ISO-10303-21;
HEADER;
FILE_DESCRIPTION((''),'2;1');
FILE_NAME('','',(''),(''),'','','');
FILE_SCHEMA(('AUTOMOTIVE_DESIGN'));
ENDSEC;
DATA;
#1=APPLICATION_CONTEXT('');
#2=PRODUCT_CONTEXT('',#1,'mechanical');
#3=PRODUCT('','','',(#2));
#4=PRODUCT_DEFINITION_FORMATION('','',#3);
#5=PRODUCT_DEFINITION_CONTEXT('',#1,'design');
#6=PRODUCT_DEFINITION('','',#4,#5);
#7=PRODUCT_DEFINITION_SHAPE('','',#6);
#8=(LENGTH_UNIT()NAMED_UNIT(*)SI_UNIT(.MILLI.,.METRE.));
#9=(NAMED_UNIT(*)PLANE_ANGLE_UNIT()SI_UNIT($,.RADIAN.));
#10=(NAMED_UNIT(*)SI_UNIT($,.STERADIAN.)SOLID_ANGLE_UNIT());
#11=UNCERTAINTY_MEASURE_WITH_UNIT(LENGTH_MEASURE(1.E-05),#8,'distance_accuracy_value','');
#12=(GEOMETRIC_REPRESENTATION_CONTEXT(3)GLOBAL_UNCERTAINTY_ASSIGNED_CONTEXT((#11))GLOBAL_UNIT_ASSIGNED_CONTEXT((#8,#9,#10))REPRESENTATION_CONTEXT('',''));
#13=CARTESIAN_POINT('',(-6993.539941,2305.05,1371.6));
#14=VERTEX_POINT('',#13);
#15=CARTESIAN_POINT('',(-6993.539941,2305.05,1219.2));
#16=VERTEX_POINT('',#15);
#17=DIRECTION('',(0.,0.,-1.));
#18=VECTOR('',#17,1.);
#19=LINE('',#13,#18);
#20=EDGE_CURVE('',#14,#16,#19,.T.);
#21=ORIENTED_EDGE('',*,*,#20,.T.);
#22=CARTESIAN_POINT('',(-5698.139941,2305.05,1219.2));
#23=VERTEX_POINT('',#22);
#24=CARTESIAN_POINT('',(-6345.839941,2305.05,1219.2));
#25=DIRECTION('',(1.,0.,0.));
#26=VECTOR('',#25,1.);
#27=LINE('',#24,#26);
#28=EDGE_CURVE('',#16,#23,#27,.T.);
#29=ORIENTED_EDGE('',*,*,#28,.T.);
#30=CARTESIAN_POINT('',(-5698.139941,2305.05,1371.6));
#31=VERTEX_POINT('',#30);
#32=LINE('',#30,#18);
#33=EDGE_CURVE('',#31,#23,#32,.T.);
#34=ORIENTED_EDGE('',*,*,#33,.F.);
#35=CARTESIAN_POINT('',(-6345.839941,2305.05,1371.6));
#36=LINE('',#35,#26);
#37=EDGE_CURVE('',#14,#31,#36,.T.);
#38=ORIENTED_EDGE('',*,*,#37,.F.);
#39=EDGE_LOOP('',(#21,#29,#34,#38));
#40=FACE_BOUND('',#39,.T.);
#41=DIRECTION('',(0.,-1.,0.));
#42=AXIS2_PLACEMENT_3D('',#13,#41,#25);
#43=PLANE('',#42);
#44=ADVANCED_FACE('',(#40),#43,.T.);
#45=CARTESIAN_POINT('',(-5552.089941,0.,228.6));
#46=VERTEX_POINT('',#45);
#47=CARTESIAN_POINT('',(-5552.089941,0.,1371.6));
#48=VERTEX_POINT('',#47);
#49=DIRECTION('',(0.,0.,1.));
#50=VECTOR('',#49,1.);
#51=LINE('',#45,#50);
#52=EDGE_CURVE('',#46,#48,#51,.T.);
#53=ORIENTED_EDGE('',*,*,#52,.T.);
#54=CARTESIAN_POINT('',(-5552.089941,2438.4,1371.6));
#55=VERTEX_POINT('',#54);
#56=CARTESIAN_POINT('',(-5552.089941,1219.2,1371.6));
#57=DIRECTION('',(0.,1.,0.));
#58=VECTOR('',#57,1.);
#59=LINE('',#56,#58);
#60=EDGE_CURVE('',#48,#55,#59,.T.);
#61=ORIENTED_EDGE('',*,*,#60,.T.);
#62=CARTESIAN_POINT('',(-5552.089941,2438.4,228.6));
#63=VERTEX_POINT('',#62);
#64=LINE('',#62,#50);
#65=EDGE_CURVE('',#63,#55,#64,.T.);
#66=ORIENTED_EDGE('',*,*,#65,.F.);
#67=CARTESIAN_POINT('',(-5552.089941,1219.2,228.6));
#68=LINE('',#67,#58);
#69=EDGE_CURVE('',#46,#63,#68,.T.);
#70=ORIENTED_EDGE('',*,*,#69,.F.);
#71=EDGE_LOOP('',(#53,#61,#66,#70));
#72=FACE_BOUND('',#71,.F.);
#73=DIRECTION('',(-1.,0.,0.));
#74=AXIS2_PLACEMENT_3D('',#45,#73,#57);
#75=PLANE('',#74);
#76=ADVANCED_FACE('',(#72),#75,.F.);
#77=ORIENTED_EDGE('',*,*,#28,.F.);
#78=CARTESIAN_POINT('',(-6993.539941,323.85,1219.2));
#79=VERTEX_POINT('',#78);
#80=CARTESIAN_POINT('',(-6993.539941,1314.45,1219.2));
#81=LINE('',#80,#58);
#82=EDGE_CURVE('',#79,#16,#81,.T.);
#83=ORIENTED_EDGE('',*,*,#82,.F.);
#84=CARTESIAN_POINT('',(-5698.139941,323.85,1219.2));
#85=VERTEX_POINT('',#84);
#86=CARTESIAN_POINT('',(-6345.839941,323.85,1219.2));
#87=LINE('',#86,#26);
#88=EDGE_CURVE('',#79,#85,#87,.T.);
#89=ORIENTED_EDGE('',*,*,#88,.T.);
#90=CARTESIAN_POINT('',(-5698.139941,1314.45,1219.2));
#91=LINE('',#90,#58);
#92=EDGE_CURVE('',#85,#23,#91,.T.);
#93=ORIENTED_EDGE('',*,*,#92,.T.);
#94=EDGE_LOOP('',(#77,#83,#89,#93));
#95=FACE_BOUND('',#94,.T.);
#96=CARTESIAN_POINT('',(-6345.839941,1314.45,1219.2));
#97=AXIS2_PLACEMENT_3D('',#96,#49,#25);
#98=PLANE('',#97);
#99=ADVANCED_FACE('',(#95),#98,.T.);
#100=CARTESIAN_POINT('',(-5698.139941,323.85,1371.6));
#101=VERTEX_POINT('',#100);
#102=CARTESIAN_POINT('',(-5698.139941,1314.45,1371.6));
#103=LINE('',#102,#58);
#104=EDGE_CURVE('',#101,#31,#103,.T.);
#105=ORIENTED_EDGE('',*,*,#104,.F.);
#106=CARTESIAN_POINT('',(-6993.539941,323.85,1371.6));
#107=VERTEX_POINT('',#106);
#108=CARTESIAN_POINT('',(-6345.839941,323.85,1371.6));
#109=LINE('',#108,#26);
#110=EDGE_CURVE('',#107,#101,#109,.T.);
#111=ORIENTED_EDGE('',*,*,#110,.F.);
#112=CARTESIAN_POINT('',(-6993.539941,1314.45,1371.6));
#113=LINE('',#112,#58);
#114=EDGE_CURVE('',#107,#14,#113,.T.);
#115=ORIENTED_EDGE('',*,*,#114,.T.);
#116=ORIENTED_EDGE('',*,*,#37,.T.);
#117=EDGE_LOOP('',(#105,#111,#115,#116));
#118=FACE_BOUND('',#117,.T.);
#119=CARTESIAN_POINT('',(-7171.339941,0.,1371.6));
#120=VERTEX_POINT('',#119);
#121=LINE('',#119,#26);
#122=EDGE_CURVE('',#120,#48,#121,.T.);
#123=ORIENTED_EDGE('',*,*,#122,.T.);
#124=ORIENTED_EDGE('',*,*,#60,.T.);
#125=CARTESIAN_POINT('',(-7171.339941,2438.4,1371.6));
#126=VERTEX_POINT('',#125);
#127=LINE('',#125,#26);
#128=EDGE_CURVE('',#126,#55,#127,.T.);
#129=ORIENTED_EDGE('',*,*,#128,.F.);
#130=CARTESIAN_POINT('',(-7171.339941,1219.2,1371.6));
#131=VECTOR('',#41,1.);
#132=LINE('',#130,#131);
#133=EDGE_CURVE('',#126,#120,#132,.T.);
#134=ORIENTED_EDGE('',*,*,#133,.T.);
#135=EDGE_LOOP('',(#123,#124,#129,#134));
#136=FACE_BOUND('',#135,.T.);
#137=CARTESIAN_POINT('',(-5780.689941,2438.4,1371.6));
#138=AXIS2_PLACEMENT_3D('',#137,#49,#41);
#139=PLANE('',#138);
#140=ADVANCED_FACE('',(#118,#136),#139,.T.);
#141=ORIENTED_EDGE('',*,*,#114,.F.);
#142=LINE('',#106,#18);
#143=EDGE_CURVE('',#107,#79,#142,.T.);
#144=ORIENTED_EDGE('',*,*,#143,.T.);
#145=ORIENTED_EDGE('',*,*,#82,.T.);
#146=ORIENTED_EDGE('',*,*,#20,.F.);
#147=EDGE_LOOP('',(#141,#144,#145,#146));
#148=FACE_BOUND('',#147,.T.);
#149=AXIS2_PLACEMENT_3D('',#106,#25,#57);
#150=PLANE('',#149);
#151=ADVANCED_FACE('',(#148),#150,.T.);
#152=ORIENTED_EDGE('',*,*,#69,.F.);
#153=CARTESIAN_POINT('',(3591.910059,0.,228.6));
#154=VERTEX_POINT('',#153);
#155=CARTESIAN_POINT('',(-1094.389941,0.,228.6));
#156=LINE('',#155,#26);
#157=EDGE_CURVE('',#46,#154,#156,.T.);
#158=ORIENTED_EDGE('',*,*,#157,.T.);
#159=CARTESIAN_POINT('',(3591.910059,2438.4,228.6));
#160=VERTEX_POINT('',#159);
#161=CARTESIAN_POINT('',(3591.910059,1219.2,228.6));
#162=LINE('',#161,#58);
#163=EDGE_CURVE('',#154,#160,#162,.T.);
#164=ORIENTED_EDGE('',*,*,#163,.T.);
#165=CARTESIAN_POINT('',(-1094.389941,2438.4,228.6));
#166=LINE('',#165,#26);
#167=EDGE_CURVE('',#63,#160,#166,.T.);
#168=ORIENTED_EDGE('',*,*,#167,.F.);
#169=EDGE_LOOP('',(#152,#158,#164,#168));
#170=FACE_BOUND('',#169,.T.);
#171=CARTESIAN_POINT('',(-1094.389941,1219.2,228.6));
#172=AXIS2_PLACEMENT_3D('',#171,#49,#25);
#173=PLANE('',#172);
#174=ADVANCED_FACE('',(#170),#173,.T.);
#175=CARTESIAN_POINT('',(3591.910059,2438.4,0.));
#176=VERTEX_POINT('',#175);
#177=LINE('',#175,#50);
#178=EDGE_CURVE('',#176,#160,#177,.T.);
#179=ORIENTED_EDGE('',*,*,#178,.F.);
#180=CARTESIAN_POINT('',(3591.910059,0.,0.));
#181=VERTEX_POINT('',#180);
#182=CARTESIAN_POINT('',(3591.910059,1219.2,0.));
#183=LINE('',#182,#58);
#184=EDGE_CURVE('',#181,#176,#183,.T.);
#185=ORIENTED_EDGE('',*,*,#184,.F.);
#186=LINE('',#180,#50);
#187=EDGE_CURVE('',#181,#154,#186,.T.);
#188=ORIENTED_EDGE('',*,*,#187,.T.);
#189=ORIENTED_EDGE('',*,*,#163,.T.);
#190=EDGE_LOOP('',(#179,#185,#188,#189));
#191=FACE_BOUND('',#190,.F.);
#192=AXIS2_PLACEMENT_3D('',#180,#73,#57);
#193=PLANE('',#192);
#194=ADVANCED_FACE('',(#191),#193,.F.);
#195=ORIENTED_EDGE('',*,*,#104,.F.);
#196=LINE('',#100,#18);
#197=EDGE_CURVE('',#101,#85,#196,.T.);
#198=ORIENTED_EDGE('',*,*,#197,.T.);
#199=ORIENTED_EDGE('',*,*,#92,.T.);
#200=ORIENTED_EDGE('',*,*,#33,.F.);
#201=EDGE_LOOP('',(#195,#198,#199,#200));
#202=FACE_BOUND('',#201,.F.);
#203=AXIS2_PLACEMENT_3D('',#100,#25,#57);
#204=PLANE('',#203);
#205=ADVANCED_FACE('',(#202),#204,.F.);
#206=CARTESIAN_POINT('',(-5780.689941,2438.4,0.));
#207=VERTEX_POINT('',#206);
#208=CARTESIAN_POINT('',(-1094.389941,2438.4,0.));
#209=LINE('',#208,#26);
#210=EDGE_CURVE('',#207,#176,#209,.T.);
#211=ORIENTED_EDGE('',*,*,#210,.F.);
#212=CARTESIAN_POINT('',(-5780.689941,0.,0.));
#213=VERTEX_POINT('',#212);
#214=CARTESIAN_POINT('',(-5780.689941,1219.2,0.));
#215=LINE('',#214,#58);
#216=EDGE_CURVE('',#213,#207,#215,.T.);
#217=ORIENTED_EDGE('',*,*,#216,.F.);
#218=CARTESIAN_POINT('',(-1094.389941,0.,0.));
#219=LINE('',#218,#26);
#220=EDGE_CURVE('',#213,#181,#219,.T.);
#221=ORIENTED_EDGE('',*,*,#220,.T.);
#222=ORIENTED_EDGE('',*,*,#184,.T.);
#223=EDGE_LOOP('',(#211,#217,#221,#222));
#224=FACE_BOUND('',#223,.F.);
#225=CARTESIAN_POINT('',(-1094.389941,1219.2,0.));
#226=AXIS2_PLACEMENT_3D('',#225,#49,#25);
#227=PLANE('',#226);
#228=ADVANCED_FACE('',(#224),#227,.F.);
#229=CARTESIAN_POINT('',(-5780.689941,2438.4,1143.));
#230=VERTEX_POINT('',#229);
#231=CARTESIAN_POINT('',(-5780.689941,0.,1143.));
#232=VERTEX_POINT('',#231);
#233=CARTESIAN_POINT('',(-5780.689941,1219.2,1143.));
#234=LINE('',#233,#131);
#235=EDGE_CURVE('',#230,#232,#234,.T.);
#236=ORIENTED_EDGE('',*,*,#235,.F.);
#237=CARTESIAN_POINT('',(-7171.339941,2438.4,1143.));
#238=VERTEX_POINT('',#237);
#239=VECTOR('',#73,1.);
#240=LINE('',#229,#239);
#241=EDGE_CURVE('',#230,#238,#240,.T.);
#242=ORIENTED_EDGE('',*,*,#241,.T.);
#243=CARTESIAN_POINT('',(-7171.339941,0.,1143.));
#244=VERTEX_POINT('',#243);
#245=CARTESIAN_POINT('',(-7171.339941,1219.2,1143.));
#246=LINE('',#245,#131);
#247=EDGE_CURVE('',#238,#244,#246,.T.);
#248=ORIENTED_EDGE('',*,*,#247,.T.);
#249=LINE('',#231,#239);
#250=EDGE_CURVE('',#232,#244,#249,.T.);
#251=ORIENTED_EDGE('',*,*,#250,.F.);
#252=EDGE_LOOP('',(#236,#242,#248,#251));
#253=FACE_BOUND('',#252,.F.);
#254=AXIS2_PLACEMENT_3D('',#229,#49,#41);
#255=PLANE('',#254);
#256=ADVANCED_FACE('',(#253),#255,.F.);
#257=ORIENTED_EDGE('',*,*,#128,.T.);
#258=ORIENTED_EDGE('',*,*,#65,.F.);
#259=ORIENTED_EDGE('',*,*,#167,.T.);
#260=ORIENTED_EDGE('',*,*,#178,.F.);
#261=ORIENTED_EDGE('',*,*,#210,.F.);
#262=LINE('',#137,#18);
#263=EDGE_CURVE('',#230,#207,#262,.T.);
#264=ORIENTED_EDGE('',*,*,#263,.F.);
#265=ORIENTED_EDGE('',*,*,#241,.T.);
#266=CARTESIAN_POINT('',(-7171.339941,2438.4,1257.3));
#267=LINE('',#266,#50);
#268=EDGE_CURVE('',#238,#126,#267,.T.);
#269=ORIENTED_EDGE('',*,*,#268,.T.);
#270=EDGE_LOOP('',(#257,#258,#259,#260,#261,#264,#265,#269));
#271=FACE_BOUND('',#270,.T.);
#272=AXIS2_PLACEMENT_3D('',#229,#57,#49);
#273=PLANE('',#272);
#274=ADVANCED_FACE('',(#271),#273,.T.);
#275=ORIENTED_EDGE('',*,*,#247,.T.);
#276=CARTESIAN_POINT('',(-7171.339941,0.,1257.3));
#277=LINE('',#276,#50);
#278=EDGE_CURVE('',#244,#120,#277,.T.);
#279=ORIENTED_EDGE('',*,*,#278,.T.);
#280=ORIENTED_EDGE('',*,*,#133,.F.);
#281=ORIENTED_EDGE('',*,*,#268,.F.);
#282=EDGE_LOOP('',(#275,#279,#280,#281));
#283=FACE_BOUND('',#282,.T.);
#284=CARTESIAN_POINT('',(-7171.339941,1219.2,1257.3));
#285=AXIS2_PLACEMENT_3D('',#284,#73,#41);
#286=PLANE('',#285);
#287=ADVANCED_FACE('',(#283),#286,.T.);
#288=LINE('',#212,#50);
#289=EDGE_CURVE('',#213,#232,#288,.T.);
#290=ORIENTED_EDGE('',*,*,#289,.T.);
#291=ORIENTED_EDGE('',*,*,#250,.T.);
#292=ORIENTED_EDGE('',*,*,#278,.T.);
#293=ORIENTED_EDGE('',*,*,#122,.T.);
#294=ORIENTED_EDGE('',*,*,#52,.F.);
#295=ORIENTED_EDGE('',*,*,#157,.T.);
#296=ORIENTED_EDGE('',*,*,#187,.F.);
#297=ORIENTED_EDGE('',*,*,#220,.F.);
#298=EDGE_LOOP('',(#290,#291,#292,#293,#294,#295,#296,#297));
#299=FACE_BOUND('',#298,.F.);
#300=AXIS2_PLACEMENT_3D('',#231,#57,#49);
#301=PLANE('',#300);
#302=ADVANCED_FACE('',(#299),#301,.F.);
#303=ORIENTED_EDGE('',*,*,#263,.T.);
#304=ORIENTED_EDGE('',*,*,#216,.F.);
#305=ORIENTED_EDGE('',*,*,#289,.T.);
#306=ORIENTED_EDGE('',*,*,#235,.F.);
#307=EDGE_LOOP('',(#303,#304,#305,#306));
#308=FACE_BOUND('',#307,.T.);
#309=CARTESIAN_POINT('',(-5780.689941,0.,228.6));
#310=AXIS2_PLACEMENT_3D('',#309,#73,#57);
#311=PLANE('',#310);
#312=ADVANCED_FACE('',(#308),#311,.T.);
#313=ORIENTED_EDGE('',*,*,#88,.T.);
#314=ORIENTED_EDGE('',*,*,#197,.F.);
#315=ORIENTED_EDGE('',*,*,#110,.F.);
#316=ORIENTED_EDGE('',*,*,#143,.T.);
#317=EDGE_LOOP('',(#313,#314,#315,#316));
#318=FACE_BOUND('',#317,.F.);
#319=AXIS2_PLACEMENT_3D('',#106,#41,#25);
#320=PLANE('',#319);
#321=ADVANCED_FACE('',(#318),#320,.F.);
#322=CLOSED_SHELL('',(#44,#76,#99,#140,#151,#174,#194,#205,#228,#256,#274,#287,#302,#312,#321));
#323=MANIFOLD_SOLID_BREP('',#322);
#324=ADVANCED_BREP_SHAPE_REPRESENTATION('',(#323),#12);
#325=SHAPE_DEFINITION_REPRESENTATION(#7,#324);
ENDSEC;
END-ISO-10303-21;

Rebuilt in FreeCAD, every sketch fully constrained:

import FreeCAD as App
import Part
import Sketcher

V = App.Vector
Q = App.Units.Quantity

doc = App.newDocument("Part")
body = doc.addObject("PartDesign::Body", "Body")

# Sketch on XY plane
sketch1 = body.newObject("Sketcher::SketchObject", "Sketch")
sketch1.AttachmentSupport = (doc.getObject("XY_Plane"), [""])
sketch1.MapMode = "FlatFace"
sketch1.addGeometry(Part.LineSegment(V(-5780.689941, 2438.4, 0), V(-5780.689941, 0, 0)), False)
sketch1.addGeometry(Part.LineSegment(V(-5780.689941, 0, 0), V(3591.910059, 0, 0)), False)
sketch1.addGeometry(Part.LineSegment(V(3591.910059, 0, 0), V(3591.910059, 2438.4, 0)), False)
sketch1.addGeometry(Part.LineSegment(V(3591.910059, 2438.4, 0), V(-5780.689941, 2438.4, 0)), False)
sketch1.addConstraint(Sketcher.Constraint("Coincident", 0, 2, 1, 1))
sketch1.addConstraint(Sketcher.Constraint("Coincident", 1, 2, 2, 1))
sketch1.addConstraint(Sketcher.Constraint("Coincident", 2, 2, 3, 1))
sketch1.addConstraint(Sketcher.Constraint("Coincident", 3, 2, 0, 1))
sketch1.addConstraint(Sketcher.Constraint("Vertical", 0))
sketch1.addConstraint(Sketcher.Constraint("Horizontal", 1))
sketch1.addConstraint(Sketcher.Constraint("Vertical", 2))
sketch1.addConstraint(Sketcher.Constraint("Horizontal", 3))
sketch1.addConstraint(Sketcher.Constraint("PointOnObject", 0, 2, -1))
sketch1.addConstraint(Sketcher.Constraint("DistanceX", 1, 1, 1, 2, Q("369 in")))
sketch1.addConstraint(Sketcher.Constraint("DistanceY", 0, 2, 0, 1, Q("96 in")))
sketch1.addConstraint(Sketcher.Constraint("DistanceX", 0, 2, -1, 1, Q("5780.689941 mm")))
pad1 = body.newObject("PartDesign::Pad", "Pad")
pad1.Profile = sketch1
pad1.Length = Q("9 in")

# Sketch on XY plane
sketch2 = body.newObject("Sketcher::SketchObject", "Sketch001")
sketch2.AttachmentSupport = (doc.getObject("XY_Plane"), [""])
sketch2.MapMode = "FlatFace"
sketch2.AttachmentOffset = App.Placement(V(0, 0, 9 * 25.4), App.Rotation())
sketch2.addGeometry(Part.LineSegment(V(-5780.689941, 2438.4, 0), V(-5780.689941, 0, 0)), False)
sketch2.addGeometry(Part.LineSegment(V(-5780.689941, 0, 0), V(-5552.089941, 0, 0)), False)
sketch2.addGeometry(Part.LineSegment(V(-5552.089941, 0, 0), V(-5552.089941, 2438.4, 0)), False)
sketch2.addGeometry(Part.LineSegment(V(-5552.089941, 2438.4, 0), V(-5780.689941, 2438.4, 0)), False)
sketch2.addConstraint(Sketcher.Constraint("Coincident", 0, 2, 1, 1))
sketch2.addConstraint(Sketcher.Constraint("Coincident", 1, 2, 2, 1))
sketch2.addConstraint(Sketcher.Constraint("Coincident", 2, 2, 3, 1))
sketch2.addConstraint(Sketcher.Constraint("Coincident", 3, 2, 0, 1))
sketch2.addConstraint(Sketcher.Constraint("Vertical", 0))
sketch2.addConstraint(Sketcher.Constraint("Horizontal", 1))
sketch2.addConstraint(Sketcher.Constraint("Vertical", 2))
sketch2.addConstraint(Sketcher.Constraint("Horizontal", 3))
sketch2.addConstraint(Sketcher.Constraint("PointOnObject", 0, 2, -1))
sketch2.addConstraint(Sketcher.Constraint("DistanceX", 1, 1, 1, 2, Q("9 in")))
sketch2.addConstraint(Sketcher.Constraint("DistanceY", 0, 2, 0, 1, Q("96 in")))
sketch2.addConstraint(Sketcher.Constraint("DistanceX", 0, 2, -1, 1, Q("5780.689941 mm")))
pad2 = body.newObject("PartDesign::Pad", "Pad001")
pad2.Profile = sketch2
pad2.Length = Q("45 in")

# Sketch on YZ plane
sketch3 = body.newObject("Sketcher::SketchObject", "Sketch002")
sketch3.AttachmentSupport = (doc.getObject("YZ_Plane"), [""])
sketch3.MapMode = "FlatFace"
sketch3.AttachmentOffset = App.Placement(V(0, 0, -5780.689941), App.Rotation())
sketch3.addGeometry(Part.LineSegment(V(2438.4, 1371.6, 0), V(2438.4, 1143, 0)), False)
sketch3.addGeometry(Part.LineSegment(V(2438.4, 1143, 0), V(0, 1143, 0)), False)
sketch3.addGeometry(Part.LineSegment(V(0, 1143, 0), V(0, 1371.6, 0)), False)
sketch3.addGeometry(Part.LineSegment(V(0, 1371.6, 0), V(2438.4, 1371.6, 0)), False)
sketch3.addConstraint(Sketcher.Constraint("Coincident", 0, 2, 1, 1))
sketch3.addConstraint(Sketcher.Constraint("Coincident", 1, 2, 2, 1))
sketch3.addConstraint(Sketcher.Constraint("Coincident", 2, 2, 3, 1))
sketch3.addConstraint(Sketcher.Constraint("Coincident", 3, 2, 0, 1))
sketch3.addConstraint(Sketcher.Constraint("Vertical", 0))
sketch3.addConstraint(Sketcher.Constraint("Horizontal", 1))
sketch3.addConstraint(Sketcher.Constraint("Vertical", 2))
sketch3.addConstraint(Sketcher.Constraint("Horizontal", 3))
sketch3.addConstraint(Sketcher.Constraint("PointOnObject", 1, 2, -2))
sketch3.addConstraint(Sketcher.Constraint("DistanceX", 1, 2, 1, 1, Q("96 in")))
sketch3.addConstraint(Sketcher.Constraint("DistanceY", 0, 2, 0, 1, Q("9 in")))
sketch3.addConstraint(Sketcher.Constraint("DistanceY", -1, 1, 0, 2, Q("45 in")))
pad3 = body.newObject("PartDesign::Pad", "Pad002")
pad3.Profile = sketch3
pad3.Length = Q("54.75 in")
pad3.Reversed = True

# Sketch on XY plane
sketch4 = body.newObject("Sketcher::SketchObject", "Sketch003")
sketch4.AttachmentSupport = (doc.getObject("XY_Plane"), [""])
sketch4.MapMode = "FlatFace"
sketch4.AttachmentOffset = App.Placement(V(0, 0, 54 * 25.4), App.Rotation())
sketch4.addGeometry(Part.LineSegment(V(-6993.539941, 2305.05, 0), V(-6993.539941, 323.85, 0)), False)
sketch4.addGeometry(Part.LineSegment(V(-6993.539941, 323.85, 0), V(-5698.139941, 323.85, 0)), False)
sketch4.addGeometry(Part.LineSegment(V(-5698.139941, 323.85, 0), V(-5698.139941, 2305.05, 0)), False)
sketch4.addGeometry(Part.LineSegment(V(-5698.139941, 2305.05, 0), V(-6993.539941, 2305.05, 0)), False)
sketch4.addConstraint(Sketcher.Constraint("Coincident", 0, 2, 1, 1))
sketch4.addConstraint(Sketcher.Constraint("Coincident", 1, 2, 2, 1))
sketch4.addConstraint(Sketcher.Constraint("Coincident", 2, 2, 3, 1))
sketch4.addConstraint(Sketcher.Constraint("Coincident", 3, 2, 0, 1))
sketch4.addConstraint(Sketcher.Constraint("Vertical", 0))
sketch4.addConstraint(Sketcher.Constraint("Horizontal", 1))
sketch4.addConstraint(Sketcher.Constraint("Vertical", 2))
sketch4.addConstraint(Sketcher.Constraint("Horizontal", 3))
sketch4.addConstraint(Sketcher.Constraint("DistanceX", 1, 1, 1, 2, Q("51 in")))
sketch4.addConstraint(Sketcher.Constraint("DistanceY", 0, 2, 0, 1, Q("78 in")))
sketch4.addConstraint(Sketcher.Constraint("DistanceY", -1, 1, 0, 2, Q("12.75 in")))
sketch4.addConstraint(Sketcher.Constraint("DistanceX", 0, 2, -1, 1, Q("6993.539941 mm")))
pocket1 = body.newObject("PartDesign::Pocket", "Pocket")
pocket1.Profile = sketch4
pocket1.Length = Q("6 in")

doc.recompute()
